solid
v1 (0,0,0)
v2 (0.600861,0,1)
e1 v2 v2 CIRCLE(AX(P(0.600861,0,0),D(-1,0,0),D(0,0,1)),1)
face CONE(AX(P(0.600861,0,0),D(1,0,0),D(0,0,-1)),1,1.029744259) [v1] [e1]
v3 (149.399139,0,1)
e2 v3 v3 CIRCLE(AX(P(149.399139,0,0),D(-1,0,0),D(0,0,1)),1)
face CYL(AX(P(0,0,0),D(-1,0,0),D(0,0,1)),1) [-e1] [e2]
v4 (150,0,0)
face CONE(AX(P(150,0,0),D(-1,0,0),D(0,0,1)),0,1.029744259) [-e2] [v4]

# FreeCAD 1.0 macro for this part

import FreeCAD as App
import Part
import Sketcher
from FreeCAD import Vector
Q = App.Units.Quantity


def add_polygon(sketch, points):
    """Adds a closed chain of lines whose ends are joined by coincident constraints."""
    first, n = sketch.GeometryCount, len(points)
    for a, b in zip(points, points[1:] + points[:1]):
        sketch.addGeometry(Part.LineSegment(App.Vector(*a, 0), App.Vector(*b, 0)), False)
    for i in range(n):
        sketch.addConstraint(Sketcher.Constraint("Coincident", first + i, 2, first + (i + 1) % n, 1))

doc = App.newDocument("Part")
body = doc.addObject("PartDesign::Body", "Body")

# Sketch on XZ plane
sketch1 = body.newObject("Sketcher::SketchObject", "Sketch")
sketch1.AttachmentSupport = (doc.getObject("XZ_Plane"), [""])
sketch1.MapMode = "FlatFace"
add_polygon(sketch1, [(0.6, -1), (0, 0), (150, 0), (149.4, -1)])  # lines 0-3
sketch1.addConstraint(Sketcher.Constraint("Horizontal", 1))
sketch1.addConstraint(Sketcher.Constraint("Horizontal", 3))
sketch1.addConstraint(Sketcher.Constraint("Coincident", 0, 2, -1, 1))
sketch1.addConstraint(Sketcher.Constraint("Equal", 0, 2))
sketch1.addConstraint(Sketcher.Constraint("DistanceX", 1, 1, 1, 2, Q("150 mm")))
sketch1.addConstraint(Sketcher.Constraint("Angle", 0, Q("121 deg")))
sketch1.addConstraint(Sketcher.Constraint("DistanceY", 2, 2, -1, 1, Q("1 mm")))
revolution = body.newObject("PartDesign::Revolution", "Revolution")
revolution.Profile = sketch1
revolution.ReferenceAxis = (sketch1, ["H_Axis"])
revolution.Angle = 360

doc.recompute()
